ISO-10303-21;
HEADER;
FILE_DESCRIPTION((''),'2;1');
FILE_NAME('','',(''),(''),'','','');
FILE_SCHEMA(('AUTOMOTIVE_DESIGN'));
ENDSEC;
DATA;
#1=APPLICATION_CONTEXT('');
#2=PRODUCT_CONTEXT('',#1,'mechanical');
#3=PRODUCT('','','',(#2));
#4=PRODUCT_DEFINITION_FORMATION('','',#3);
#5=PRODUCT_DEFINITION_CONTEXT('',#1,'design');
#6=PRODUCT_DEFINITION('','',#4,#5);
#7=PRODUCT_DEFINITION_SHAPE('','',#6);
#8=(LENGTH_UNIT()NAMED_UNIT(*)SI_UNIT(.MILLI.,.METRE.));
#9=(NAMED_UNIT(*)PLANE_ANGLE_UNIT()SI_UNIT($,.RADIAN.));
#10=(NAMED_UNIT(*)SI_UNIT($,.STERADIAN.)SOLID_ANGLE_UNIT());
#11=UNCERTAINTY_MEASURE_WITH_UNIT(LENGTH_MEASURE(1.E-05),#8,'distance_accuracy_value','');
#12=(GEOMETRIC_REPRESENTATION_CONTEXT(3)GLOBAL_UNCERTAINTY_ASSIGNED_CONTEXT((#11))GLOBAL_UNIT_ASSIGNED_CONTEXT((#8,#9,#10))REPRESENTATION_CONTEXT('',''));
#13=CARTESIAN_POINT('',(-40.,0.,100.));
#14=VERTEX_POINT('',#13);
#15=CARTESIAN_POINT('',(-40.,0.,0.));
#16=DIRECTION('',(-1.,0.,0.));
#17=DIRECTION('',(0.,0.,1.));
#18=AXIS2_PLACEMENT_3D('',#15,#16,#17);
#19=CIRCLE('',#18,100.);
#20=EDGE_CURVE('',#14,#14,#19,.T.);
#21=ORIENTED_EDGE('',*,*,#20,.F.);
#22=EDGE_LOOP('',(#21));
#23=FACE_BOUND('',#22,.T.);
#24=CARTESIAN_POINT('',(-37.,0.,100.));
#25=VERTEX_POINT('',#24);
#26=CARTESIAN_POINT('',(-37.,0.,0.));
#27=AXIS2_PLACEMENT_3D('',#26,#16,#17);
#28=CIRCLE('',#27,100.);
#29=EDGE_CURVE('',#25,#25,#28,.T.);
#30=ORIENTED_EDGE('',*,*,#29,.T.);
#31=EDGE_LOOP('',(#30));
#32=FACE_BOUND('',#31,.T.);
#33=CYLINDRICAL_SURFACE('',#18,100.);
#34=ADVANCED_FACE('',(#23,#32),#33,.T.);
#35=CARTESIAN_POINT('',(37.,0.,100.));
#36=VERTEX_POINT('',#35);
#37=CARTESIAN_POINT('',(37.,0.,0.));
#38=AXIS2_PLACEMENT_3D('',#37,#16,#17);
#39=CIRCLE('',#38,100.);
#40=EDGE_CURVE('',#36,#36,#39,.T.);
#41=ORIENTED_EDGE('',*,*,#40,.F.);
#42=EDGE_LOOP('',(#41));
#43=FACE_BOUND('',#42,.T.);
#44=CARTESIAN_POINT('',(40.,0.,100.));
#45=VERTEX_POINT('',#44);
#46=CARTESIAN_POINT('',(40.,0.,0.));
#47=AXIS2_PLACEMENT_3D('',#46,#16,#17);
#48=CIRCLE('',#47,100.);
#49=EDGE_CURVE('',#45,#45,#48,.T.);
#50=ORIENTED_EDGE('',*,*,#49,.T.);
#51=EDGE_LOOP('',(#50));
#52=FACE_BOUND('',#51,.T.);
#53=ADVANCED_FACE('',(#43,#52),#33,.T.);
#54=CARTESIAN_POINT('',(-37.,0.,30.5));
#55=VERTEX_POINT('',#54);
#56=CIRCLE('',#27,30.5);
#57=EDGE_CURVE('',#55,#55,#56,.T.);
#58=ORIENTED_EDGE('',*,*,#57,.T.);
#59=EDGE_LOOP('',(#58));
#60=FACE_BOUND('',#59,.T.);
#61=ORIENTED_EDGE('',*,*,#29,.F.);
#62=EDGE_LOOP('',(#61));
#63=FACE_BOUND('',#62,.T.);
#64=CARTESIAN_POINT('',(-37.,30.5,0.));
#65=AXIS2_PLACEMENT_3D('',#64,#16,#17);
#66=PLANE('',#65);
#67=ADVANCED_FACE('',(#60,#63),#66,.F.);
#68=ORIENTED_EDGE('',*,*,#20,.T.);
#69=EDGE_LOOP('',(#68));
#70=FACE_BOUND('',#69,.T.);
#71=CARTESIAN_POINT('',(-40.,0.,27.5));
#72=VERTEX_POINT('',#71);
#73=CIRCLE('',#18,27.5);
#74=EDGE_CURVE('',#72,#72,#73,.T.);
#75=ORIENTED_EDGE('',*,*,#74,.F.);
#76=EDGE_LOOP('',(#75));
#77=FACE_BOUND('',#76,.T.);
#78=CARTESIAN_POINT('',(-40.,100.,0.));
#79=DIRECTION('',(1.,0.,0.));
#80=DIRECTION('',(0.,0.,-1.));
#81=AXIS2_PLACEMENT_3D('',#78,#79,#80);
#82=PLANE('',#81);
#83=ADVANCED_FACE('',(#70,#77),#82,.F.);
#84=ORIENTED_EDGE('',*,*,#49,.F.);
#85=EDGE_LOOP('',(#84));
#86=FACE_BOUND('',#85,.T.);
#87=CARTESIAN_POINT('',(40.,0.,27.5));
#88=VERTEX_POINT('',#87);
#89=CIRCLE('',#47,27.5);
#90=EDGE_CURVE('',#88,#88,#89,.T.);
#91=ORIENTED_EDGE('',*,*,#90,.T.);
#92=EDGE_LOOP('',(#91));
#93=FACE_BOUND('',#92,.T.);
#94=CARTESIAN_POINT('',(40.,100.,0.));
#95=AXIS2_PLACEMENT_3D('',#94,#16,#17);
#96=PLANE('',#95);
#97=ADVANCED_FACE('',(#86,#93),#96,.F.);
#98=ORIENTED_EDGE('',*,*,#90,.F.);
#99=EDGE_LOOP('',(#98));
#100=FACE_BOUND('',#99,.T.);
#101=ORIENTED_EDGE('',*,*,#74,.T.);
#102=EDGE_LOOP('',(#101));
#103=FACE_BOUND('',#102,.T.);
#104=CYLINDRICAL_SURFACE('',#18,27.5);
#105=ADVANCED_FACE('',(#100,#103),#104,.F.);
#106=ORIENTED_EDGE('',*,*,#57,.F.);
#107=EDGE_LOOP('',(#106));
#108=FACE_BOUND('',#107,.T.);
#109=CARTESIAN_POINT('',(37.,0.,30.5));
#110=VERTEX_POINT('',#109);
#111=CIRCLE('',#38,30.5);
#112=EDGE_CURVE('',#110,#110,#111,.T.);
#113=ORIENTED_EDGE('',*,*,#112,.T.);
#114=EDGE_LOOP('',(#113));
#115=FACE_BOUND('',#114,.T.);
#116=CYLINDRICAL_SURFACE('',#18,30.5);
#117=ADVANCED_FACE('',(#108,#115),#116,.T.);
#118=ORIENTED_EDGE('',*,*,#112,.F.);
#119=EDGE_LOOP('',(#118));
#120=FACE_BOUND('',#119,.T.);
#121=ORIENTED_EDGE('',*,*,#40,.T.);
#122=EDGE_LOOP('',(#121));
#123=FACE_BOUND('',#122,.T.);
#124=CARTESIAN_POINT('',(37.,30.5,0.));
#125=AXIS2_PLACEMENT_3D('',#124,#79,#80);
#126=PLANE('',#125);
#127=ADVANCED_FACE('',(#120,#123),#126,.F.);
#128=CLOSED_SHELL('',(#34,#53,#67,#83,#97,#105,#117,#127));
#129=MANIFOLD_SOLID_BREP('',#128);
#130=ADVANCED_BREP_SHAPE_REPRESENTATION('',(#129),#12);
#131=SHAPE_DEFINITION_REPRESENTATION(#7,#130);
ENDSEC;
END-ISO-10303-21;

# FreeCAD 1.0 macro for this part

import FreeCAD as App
import Part
import Sketcher

V = App.Vector

doc = App.newDocument("Part")
body = doc.addObject("PartDesign::Body", "Body")

# Sketch on XY plane
sketch1 = body.newObject("Sketcher::SketchObject", "Sketch")
sketch1.AttachmentSupport = (doc.getObject("XY_Plane"), [""])
sketch1.MapMode = "FlatFace"
sketch1.addGeometry(Part.LineSegment(V(37, 30.5, 0), V(-37, 30.5, 0)), False)
sketch1.addGeometry(Part.LineSegment(V(-37, 30.5, 0), V(-37, 100, 0)), False)
sketch1.addGeometry(Part.LineSegment(V(-37, 100, 0), V(-40, 100, 0)), False)
sketch1.addGeometry(Part.LineSegment(V(-40, 100, 0), V(-40, 27.5, 0)), False)
sketch1.addGeometry(Part.LineSegment(V(-40, 27.5, 0), V(40, 27.5, 0)), False)
sketch1.addGeometry(Part.LineSegment(V(40, 27.5, 0), V(40, 100, 0)), False)
sketch1.addGeometry(Part.LineSegment(V(40, 100, 0), V(37, 100, 0)), False)
sketch1.addGeometry(Part.LineSegment(V(37, 100, 0), V(37, 30.5, 0)), False)
sketch1.addConstraint(Sketcher.Constraint("Coincident", 0, 2, 1, 1))
sketch1.addConstraint(Sketcher.Constraint("Coincident", 1, 2, 2, 1))
sketch1.addConstraint(Sketcher.Constraint("Coincident", 2, 2, 3, 1))
sketch1.addConstraint(Sketcher.Constraint("Coincident", 3, 2, 4, 1))
sketch1.addConstraint(Sketcher.Constraint("Coincident", 4, 2, 5, 1))
sketch1.addConstraint(Sketcher.Constraint("Coincident", 5, 2, 6, 1))
sketch1.addConstraint(Sketcher.Constraint("Coincident", 6, 2, 7, 1))
sketch1.addConstraint(Sketcher.Constraint("Coincident", 7, 2, 0, 1))
sketch1.addConstraint(Sketcher.Constraint("Horizontal", 0))
sketch1.addConstraint(Sketcher.Constraint("Vertical", 1))
sketch1.addConstraint(Sketcher.Constraint("Horizontal", 2))
sketch1.addConstraint(Sketcher.Constraint("Vertical", 3))
sketch1.addConstraint(Sketcher.Constraint("Horizontal", 4))
sketch1.addConstraint(Sketcher.Constraint("Vertical", 5))
sketch1.addConstraint(Sketcher.Constraint("Horizontal", 6))
sketch1.addConstraint(Sketcher.Constraint("Vertical", 7))
sketch1.addConstraint(Sketcher.Constraint("Symmetric", 2, 2, 5, 2, -2))
sketch1.addConstraint(Sketcher.Constraint("Equal", 2, 6))
sketch1.addConstraint(Sketcher.Constraint("DistanceX", 0, 2, 0, 1, 74.0))
sketch1.addConstraint(Sketcher.Constraint("DistanceX", 2, 2, 2, 1, 3.0))
sketch1.addConstraint(Sketcher.Constraint("DistanceY", 1, 1, 1, 2, 69.5))
sketch1.addConstraint(Sketcher.Constraint("DistanceY", 3, 2, 3, 1, 72.5))
sketch1.addConstraint(Sketcher.Constraint("DistanceY", -1, 1, 1, 2, 100.0))
revolution = body.newObject("PartDesign::Revolution", "Revolution")
revolution.Profile = sketch1
revolution.ReferenceAxis = (sketch1, ["H_Axis"])
revolution.Angle = 360

doc.recompute()
